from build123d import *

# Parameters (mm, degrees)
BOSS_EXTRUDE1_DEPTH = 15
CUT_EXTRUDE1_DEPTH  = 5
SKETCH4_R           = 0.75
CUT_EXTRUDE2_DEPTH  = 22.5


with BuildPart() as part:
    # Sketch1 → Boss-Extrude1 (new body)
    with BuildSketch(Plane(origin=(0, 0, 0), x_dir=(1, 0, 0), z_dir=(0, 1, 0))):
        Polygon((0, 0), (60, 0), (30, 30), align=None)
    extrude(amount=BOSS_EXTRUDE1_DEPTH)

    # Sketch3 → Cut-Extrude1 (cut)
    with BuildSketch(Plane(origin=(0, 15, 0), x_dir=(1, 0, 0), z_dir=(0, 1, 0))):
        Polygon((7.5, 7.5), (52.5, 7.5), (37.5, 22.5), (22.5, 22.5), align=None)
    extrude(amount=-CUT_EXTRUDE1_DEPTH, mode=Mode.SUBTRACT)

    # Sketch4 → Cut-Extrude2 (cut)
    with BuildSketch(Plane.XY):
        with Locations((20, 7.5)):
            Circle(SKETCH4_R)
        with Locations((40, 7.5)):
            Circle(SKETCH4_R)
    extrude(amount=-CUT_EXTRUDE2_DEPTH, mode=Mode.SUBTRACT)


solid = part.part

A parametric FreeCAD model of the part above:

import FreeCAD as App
import Part
import Sketcher

V = App.Vector

doc = App.newDocument("Part")
body = doc.addObject("PartDesign::Body", "Body")

# Sketch on XZ plane
sketch1 = body.newObject("Sketcher::SketchObject", "Sketch")
sketch1.AttachmentSupport = (doc.getObject("XZ_Plane"), [""])
sketch1.MapMode = "FlatFace"
sketch1.addGeometry(Part.LineSegment(V(0, 0, 0), V(60, 0, 0)), False)
sketch1.addGeometry(Part.LineSegment(V(60, 0, 0), V(30, -30, 0)), False)
sketch1.addGeometry(Part.LineSegment(V(30, -30, 0), V(0, 0, 0)), False)
sketch1.addConstraint(Sketcher.Constraint("Coincident", 0, 2, 1, 1))
sketch1.addConstraint(Sketcher.Constraint("Coincident", 1, 2, 2, 1))
sketch1.addConstraint(Sketcher.Constraint("Coincident", 2, 2, 0, 1))
sketch1.addConstraint(Sketcher.Constraint("Horizontal", 0))
sketch1.addConstraint(Sketcher.Constraint("Coincident", 2, 2, -1, 1))
sketch1.addConstraint(Sketcher.Constraint("Perpendicular", 1, 2))
sketch1.addConstraint(Sketcher.Constraint("Equal", 1, 2))
sketch1.addConstraint(Sketcher.Constraint("DistanceX", 0, 1, 0, 2, 60.0))
pad1 = body.newObject("PartDesign::Pad", "Pad")
pad1.Profile = sketch1
pad1.Length = 15
pad1.Reversed = True

# Sketch on XZ plane
sketch2 = body.newObject("Sketcher::SketchObject", "Sketch001")
sketch2.AttachmentSupport = (doc.getObject("XZ_Plane"), [""])
sketch2.MapMode = "FlatFace"
sketch2.AttachmentOffset = App.Placement(V(0, 0, -15), App.Rotation())
sketch2.addGeometry(Part.LineSegment(V(8, -8, 0), V(52, -8, 0)), False)
sketch2.addGeometry(Part.LineSegment(V(52, -8, 0), V(38, -22, 0)), False)
sketch2.addGeometry(Part.LineSegment(V(38, -22, 0), V(22, -22, 0)), False)
sketch2.addGeometry(Part.LineSegment(V(22, -22, 0), V(8, -8, 0)), False)
sketch2.addConstraint(Sketcher.Constraint("Coincident", 0, 2, 1, 1))
sketch2.addConstraint(Sketcher.Constraint("Coincident", 1, 2, 2, 1))
sketch2.addConstraint(Sketcher.Constraint("Coincident", 2, 2, 3, 1))
sketch2.addConstraint(Sketcher.Constraint("Coincident", 3, 2, 0, 1))
sketch2.addConstraint(Sketcher.Constraint("Horizontal", 0))
sketch2.addConstraint(Sketcher.Constraint("Horizontal", 2))
sketch2.addConstraint(Sketcher.Constraint("Perpendicular", 1, 3))
sketch2.addConstraint(Sketcher.Constraint("Equal", 1, 3))
sketch2.addConstraint(Sketcher.Constraint("DistanceX", 0, 1, 0, 2, 45.0))
sketch2.addConstraint(Sketcher.Constraint("DistanceX", 2, 2, 2, 1, 15.0))
sketch2.addConstraint(Sketcher.Constraint("DistanceX", -1, 1, 0, 2, 52.5))
sketch2.addConstraint(Sketcher.Constraint("DistanceY", 0, 2, -1, 1, 7.5))
pocket1 = body.newObject("PartDesign::Pocket", "Pocket")
pocket1.Profile = sketch2
pocket1.Length = 5
pocket1.Reversed = True

# Sketch on XY plane
sketch3 = body.newObject("Sketcher::SketchObject", "Sketch002")
sketch3.AttachmentSupport = (doc.getObject("XY_Plane"), [""])
sketch3.MapMode = "FlatFace"
sketch3.addGeometry(Part.Circle(V(20, 7.5, 0), V(0, 0, 1), 0.8), False)
sketch3.addGeometry(Part.Circle(V(40, 7.5, 0), V(0, 0, 1), 0.8), False)
sketch3.addConstraint(Sketcher.Constraint("Equal", 0, 1))
sketch3.addConstraint(Sketcher.Constraint("Horizontal", 0, 3, 1, 3))
sketch3.addConstraint(Sketcher.Constraint("Diameter", 0, 1.5))
sketch3.addConstraint(Sketcher.Constraint("DistanceX", -1, 1, 0, 3, 20.0))
sketch3.addConstraint(Sketcher.Constraint("DistanceX", -1, 1, 1, 3, 40.0))
sketch3.addConstraint(Sketcher.Constraint("DistanceY", -1, 1, 0, 3, 7.5))
pocket2 = body.newObject("PartDesign::Pocket", "Pocket001")
pocket2.Profile = sketch3
pocket2.Length = 22.5

doc.recompute()
